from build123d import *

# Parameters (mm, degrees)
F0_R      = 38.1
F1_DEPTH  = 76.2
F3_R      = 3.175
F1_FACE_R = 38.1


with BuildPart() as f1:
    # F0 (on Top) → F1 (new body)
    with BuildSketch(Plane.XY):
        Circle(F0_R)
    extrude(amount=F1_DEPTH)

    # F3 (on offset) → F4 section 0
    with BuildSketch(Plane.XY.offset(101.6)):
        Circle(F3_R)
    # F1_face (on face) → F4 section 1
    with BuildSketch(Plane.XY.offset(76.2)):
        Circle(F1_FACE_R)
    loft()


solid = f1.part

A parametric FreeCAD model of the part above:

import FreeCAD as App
import Part
import Sketcher

V = App.Vector
Q = App.Units.Quantity

doc = App.newDocument("Part")
body = doc.addObject("PartDesign::Body", "Body")

sketch1 = doc.addObject("Sketcher::SketchObject", "Sketch")
body.addObject(sketch1)
sketch1.AttachmentSupport = (doc.XY_Plane, [""])
sketch1.MapMode = "FlatFace"
sketch1.addGeometry(Part.Circle(V(0, 0, 0), V(0, 0, 1), 38), False)
sketch1.addConstraint(Sketcher.Constraint("Coincident", 0, 3, -1, 1))
sketch1.addConstraint(Sketcher.Constraint("Diameter", 0, Q("3 in")))
pad1 = doc.addObject("PartDesign::Pad", "Pad")
body.addObject(pad1)
pad1.Profile = sketch1
pad1.Length = Q("3 in")

sketch2 = doc.addObject("Sketcher::SketchObject", "Sketch001")
body.addObject(sketch2)
sketch2.AttachmentSupport = (doc.XY_Plane, [""])
sketch2.MapMode = "FlatFace"
sketch2.AttachmentOffset = App.Placement(V(0, 0, 4 * 25.4), App.Rotation())
sketch2.addGeometry(Part.Circle(V(0, 0, 0), V(0, 0, 1), 3.2), False)
sketch2.addConstraint(Sketcher.Constraint("Coincident", 0, 3, -1, 1))
sketch2.addConstraint(Sketcher.Constraint("Diameter", 0, Q("0.25 in")))

sketch3 = doc.addObject("Sketcher::SketchObject", "Sketch002")
body.addObject(sketch3)
sketch3.AttachmentSupport = (doc.XY_Plane, [""])
sketch3.MapMode = "FlatFace"
sketch3.AttachmentOffset = App.Placement(V(0, 0, 3 * 25.4), App.Rotation())
sketch3.addGeometry(Part.Circle(V(0, 0, 0), V(0, 0, 1), 38), False)
sketch3.addConstraint(Sketcher.Constraint("Coincident", 0, 3, -1, 1))
sketch3.addConstraint(Sketcher.Constraint("Diameter", 0, Q("3 in")))

additiveloft = doc.addObject("PartDesign::AdditiveLoft", "AdditiveLoft")
body.addObject(additiveloft)
additiveloft.Profile = sketch2
additiveloft.Sections = [sketch3]

doc.recompute()
